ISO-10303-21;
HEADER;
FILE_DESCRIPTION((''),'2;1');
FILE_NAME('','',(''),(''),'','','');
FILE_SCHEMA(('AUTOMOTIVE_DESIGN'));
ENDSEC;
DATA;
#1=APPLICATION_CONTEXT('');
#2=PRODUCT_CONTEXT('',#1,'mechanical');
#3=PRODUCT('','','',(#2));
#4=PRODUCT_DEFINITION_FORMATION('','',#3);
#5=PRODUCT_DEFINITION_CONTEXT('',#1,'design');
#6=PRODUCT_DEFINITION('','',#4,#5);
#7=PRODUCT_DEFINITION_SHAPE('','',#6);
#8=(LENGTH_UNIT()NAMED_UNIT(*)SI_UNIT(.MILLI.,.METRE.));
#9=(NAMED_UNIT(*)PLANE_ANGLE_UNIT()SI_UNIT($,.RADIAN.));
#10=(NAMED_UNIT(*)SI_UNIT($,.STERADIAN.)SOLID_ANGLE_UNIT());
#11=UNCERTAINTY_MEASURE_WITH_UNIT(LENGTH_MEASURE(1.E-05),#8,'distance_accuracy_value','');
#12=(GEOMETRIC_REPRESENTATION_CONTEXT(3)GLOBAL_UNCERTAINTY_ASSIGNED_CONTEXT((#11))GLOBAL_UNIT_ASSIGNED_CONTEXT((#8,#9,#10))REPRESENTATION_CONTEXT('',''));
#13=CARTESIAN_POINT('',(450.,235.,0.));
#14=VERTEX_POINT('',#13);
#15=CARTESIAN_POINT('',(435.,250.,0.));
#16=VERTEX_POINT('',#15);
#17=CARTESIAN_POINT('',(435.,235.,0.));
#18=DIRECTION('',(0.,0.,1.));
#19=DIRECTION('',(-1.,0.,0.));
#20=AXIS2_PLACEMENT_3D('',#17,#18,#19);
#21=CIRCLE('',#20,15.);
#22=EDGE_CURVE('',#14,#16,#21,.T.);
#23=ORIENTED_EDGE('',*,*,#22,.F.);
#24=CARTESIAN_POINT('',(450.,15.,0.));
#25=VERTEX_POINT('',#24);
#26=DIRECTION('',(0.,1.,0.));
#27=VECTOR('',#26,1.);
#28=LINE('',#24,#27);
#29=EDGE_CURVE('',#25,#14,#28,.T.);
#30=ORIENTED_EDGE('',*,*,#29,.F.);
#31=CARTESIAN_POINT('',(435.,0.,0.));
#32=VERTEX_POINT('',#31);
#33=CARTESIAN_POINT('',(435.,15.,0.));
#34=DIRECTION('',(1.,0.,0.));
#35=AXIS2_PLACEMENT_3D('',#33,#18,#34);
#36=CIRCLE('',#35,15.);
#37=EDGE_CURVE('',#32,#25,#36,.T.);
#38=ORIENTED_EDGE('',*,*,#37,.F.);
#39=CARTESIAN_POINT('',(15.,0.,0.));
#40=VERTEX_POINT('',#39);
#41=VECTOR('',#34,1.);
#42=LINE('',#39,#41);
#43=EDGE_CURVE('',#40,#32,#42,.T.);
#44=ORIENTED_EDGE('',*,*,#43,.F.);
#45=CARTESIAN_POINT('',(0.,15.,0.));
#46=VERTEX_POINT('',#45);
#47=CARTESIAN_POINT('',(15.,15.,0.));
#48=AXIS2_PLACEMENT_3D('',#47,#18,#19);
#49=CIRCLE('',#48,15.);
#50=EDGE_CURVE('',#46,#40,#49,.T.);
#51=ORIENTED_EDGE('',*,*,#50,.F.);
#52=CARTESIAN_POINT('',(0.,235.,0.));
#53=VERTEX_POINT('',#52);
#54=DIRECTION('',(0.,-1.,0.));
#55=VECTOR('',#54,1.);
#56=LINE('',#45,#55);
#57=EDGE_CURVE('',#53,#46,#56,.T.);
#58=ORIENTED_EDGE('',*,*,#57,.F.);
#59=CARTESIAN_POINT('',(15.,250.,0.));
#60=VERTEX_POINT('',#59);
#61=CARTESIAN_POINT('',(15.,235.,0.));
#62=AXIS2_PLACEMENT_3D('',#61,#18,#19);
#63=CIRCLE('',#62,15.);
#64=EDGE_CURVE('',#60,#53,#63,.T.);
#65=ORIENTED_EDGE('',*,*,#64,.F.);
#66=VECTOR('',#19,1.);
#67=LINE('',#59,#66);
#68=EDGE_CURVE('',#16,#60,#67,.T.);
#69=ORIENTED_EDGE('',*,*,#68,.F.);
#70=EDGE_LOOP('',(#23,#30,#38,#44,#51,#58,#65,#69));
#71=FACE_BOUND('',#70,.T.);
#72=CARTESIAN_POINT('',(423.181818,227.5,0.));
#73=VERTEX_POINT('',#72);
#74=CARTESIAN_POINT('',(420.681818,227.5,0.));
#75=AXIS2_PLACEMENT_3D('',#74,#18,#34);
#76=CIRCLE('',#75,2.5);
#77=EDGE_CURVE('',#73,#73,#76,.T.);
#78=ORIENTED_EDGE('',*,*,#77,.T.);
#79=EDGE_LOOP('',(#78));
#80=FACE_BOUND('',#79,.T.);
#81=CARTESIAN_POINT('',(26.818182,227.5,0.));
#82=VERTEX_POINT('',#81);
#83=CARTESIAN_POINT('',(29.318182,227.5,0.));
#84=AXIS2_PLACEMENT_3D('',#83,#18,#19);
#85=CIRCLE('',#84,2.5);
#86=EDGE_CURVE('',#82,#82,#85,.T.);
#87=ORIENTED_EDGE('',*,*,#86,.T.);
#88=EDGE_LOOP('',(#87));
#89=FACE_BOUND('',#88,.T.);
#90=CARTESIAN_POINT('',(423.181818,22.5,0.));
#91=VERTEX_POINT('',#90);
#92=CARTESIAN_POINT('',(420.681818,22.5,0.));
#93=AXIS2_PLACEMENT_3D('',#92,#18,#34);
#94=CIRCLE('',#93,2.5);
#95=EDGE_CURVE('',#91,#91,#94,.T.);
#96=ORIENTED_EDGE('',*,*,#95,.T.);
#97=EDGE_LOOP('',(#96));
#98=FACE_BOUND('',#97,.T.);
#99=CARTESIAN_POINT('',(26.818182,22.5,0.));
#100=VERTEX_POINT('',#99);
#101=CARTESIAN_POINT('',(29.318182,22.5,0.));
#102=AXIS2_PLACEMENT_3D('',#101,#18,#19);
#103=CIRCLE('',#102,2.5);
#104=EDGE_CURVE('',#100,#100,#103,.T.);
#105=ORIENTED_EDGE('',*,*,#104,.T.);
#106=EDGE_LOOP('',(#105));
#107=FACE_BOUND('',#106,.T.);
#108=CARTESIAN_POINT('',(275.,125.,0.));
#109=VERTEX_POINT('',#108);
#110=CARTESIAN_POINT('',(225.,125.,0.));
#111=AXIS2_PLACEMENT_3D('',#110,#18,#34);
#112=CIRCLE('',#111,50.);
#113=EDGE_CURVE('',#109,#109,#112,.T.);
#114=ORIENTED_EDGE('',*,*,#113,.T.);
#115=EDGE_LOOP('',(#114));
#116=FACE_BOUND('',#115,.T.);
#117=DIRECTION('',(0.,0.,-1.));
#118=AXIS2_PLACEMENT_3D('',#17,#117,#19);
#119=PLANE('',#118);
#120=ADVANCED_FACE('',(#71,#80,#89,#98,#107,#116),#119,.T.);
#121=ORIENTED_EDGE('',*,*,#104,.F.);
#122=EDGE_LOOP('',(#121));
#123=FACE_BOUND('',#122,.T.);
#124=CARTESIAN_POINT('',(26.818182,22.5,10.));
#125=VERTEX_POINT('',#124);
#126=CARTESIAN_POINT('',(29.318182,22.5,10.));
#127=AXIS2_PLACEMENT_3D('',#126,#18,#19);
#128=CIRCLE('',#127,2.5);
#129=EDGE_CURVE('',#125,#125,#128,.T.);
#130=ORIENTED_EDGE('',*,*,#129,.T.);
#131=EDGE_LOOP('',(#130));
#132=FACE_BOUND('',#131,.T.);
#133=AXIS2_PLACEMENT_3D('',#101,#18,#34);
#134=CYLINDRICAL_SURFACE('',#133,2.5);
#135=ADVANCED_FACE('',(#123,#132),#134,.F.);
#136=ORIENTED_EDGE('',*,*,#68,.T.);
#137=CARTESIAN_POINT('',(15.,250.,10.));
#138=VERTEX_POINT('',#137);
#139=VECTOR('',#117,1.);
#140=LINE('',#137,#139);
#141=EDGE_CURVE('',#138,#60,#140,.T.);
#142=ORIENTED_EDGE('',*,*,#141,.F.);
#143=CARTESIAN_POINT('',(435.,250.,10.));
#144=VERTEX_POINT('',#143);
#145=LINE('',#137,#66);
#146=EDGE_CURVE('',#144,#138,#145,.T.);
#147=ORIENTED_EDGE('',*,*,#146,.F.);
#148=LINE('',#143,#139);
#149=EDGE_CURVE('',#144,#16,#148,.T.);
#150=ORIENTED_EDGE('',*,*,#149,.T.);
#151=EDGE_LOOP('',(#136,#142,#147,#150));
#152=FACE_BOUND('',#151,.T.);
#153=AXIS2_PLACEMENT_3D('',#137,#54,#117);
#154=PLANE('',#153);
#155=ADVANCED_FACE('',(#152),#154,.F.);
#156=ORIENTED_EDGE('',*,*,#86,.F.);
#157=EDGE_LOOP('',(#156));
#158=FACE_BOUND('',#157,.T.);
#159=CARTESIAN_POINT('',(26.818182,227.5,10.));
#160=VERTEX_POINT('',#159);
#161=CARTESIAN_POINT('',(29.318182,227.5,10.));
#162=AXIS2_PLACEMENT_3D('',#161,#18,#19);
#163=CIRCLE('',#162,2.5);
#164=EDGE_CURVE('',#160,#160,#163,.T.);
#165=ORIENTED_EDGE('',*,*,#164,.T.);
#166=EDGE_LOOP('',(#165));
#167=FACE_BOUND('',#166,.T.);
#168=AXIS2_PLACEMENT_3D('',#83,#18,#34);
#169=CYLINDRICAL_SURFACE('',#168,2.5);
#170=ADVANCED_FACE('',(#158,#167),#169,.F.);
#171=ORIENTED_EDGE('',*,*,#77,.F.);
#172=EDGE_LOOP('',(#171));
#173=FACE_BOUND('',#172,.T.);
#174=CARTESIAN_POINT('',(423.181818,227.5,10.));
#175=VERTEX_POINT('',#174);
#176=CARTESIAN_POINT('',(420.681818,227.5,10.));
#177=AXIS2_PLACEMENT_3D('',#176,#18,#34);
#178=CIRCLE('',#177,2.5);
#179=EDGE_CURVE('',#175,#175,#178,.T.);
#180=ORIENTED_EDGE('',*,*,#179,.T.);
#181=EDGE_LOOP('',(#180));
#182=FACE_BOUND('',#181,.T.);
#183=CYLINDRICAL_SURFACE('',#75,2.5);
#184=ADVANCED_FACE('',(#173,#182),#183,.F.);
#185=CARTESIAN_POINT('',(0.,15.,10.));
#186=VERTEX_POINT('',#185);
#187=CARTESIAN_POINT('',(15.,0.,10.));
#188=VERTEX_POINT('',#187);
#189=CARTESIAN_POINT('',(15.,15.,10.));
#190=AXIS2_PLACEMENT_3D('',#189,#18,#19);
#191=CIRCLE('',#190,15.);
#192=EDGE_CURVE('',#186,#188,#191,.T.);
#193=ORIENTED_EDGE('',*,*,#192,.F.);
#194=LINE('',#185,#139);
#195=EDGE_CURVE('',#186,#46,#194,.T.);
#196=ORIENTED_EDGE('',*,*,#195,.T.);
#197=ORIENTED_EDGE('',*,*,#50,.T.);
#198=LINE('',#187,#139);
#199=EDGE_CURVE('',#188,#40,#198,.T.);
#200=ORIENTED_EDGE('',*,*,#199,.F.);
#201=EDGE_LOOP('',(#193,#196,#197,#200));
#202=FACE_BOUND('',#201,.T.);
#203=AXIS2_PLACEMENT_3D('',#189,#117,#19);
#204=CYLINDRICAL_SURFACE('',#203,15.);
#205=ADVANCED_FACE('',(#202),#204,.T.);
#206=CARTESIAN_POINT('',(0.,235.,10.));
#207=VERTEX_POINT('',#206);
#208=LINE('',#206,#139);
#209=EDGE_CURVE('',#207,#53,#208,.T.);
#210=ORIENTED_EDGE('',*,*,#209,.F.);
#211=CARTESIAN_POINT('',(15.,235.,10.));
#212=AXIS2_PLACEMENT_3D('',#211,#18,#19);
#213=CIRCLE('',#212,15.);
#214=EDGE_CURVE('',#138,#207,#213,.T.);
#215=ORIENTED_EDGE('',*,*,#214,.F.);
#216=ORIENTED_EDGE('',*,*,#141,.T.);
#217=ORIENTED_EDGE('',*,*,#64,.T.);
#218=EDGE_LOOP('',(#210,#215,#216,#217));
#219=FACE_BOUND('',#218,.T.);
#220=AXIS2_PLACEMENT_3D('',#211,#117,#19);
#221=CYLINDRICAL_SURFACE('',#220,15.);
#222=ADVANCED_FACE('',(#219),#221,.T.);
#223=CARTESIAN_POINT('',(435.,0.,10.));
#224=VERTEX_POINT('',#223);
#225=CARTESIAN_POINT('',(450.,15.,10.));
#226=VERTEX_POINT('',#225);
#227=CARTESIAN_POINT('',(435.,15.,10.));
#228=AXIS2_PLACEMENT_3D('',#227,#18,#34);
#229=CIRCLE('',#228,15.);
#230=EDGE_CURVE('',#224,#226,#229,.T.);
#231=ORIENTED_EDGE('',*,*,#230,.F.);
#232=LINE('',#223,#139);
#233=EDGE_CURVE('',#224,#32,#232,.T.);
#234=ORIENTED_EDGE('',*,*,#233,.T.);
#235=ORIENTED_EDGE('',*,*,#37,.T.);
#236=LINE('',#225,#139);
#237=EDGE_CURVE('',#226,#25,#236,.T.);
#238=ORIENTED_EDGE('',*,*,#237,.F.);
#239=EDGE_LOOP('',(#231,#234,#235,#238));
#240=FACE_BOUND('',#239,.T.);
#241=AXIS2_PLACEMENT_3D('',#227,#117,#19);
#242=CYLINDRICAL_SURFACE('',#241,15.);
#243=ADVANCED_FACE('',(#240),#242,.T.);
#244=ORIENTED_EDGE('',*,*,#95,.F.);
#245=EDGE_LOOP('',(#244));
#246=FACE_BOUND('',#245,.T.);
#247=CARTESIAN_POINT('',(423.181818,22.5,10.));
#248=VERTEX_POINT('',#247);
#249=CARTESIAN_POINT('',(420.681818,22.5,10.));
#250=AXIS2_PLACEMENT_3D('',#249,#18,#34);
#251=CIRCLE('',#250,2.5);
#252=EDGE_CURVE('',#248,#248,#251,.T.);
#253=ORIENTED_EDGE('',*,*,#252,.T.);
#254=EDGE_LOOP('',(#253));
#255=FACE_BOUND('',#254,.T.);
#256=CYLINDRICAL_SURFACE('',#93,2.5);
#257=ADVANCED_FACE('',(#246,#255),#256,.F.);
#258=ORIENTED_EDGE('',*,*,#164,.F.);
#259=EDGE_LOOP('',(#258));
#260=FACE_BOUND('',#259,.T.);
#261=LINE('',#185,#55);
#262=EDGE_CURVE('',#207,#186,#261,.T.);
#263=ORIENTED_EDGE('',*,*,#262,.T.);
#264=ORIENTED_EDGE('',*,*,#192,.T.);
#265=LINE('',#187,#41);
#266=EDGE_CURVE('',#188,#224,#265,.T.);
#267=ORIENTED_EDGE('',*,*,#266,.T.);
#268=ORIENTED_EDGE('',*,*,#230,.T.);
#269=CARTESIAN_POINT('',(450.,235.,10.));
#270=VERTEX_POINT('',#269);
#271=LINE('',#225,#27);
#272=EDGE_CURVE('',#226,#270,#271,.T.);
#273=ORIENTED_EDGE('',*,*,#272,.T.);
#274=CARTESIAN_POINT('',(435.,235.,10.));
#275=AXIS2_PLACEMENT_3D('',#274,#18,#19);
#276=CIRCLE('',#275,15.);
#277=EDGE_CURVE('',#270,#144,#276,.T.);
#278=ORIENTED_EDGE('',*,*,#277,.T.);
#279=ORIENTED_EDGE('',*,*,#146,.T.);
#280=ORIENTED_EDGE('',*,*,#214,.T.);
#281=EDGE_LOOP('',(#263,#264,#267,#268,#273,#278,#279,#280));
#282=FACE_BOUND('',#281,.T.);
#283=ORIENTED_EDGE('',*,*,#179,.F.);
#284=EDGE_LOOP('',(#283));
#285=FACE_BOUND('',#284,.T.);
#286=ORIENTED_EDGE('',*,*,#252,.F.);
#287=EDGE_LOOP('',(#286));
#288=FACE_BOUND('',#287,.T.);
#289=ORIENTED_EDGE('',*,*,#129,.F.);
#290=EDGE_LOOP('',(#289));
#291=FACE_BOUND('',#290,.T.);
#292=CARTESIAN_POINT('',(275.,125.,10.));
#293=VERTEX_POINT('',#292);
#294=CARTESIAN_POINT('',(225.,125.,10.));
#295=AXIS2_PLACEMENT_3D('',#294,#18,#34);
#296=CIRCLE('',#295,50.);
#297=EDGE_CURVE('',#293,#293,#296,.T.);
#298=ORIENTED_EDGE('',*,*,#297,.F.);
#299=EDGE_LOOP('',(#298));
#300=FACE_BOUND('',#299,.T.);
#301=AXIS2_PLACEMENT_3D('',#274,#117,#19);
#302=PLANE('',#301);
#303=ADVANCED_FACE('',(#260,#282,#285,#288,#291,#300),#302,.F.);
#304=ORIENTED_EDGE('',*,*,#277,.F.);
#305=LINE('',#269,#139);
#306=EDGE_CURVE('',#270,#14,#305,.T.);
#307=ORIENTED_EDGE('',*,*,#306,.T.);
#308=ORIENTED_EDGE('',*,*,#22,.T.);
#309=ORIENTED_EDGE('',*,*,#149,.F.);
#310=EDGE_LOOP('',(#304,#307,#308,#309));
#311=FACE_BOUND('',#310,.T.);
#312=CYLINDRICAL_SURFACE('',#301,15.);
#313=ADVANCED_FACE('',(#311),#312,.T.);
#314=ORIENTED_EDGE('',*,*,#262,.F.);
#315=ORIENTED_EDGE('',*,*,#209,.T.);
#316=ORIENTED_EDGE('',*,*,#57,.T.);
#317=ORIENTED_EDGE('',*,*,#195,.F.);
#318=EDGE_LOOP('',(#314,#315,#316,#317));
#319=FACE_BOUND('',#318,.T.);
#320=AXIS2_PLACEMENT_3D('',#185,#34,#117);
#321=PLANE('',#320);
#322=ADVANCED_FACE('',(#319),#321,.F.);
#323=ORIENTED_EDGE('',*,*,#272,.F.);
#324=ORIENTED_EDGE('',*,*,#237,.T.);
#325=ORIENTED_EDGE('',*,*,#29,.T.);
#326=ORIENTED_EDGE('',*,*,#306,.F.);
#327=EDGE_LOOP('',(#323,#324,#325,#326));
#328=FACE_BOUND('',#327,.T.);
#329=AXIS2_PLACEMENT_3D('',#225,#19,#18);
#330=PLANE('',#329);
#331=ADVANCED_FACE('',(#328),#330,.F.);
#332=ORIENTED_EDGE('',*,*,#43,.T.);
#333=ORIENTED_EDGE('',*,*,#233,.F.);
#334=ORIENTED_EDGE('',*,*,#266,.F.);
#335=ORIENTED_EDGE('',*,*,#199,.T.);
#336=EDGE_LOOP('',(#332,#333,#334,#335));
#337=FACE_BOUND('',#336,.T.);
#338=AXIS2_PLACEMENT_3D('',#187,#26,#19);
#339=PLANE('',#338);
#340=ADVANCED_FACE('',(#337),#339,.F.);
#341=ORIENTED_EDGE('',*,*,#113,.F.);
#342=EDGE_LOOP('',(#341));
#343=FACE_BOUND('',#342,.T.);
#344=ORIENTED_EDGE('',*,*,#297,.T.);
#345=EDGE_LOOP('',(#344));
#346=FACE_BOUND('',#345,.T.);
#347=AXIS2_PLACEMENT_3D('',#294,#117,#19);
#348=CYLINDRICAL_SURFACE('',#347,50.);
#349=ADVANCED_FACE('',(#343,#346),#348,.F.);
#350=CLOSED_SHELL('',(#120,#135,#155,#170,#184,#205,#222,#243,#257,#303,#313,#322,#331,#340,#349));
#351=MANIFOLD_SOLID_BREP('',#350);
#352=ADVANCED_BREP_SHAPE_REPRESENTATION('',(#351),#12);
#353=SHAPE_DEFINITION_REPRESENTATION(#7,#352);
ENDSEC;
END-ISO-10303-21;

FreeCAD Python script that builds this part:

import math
import FreeCAD as App
import Part
import Sketcher
Q = App.Units.Quantity

doc = App.newDocument("Part")
body = doc.addObject("PartDesign::Body", "Body")

sketch1 = body.newObject("Sketcher::SketchObject", "Sketch")
sketch1.AttachmentSupport = (doc.getObject("XY_Plane"), [""])
sketch1.MapMode = "FlatFace"
sketch1.addGeometry(Part.LineSegment(App.Vector(15, 0, 0), App.Vector(435, 0, 0)), False)
sketch1.addGeometry(Part.ArcOfCircle(Part.Circle(App.Vector(435, 15, 0), App.Vector(0, 0, 1), 15), math.radians(-90), math.radians(0)), False)
sketch1.addGeometry(Part.LineSegment(App.Vector(450, 15, 0), App.Vector(450, 235, 0)), False)
sketch1.addGeometry(Part.ArcOfCircle(Part.Circle(App.Vector(435, 235, 0), App.Vector(0, 0, 1), 15), math.radians(0), math.radians(90)), False)
sketch1.addGeometry(Part.LineSegment(App.Vector(435, 250, 0), App.Vector(15, 250, 0)), False)
sketch1.addGeometry(Part.ArcOfCircle(Part.Circle(App.Vector(15, 235, 0), App.Vector(0, 0, 1), 15), math.radians(90), math.radians(180)), False)
sketch1.addGeometry(Part.LineSegment(App.Vector(0, 235, 0), App.Vector(0, 15, 0)), False)
sketch1.addGeometry(Part.ArcOfCircle(Part.Circle(App.Vector(15, 15, 0), App.Vector(0, 0, 1), 15), math.radians(180), math.radians(270)), False)
sketch1.addGeometry(Part.Circle(App.Vector(225, 125, 0), App.Vector(0, 0, 1), 50), False)
sketch1.addConstraint(Sketcher.Constraint("Tangent", 0, 2, 1, 1))
sketch1.addConstraint(Sketcher.Constraint("Tangent", 1, 2, 2, 1))
sketch1.addConstraint(Sketcher.Constraint("Tangent", 2, 2, 3, 1))
sketch1.addConstraint(Sketcher.Constraint("Tangent", 3, 2, 4, 1))
sketch1.addConstraint(Sketcher.Constraint("Tangent", 4, 2, 5, 1))
sketch1.addConstraint(Sketcher.Constraint("Tangent", 5, 2, 6, 1))
sketch1.addConstraint(Sketcher.Constraint("Tangent", 6, 2, 7, 1))
sketch1.addConstraint(Sketcher.Constraint("Tangent", 7, 2, 0, 1))
sketch1.addConstraint(Sketcher.Constraint("Horizontal", 0))
sketch1.addConstraint(Sketcher.Constraint("Vertical", 2))
sketch1.addConstraint(Sketcher.Constraint("Horizontal", 4))
sketch1.addConstraint(Sketcher.Constraint("Vertical", 6))
sketch1.addConstraint(Sketcher.Constraint("Equal", 1, 3))
sketch1.addConstraint(Sketcher.Constraint("Equal", 3, 5))
sketch1.addConstraint(Sketcher.Constraint("Equal", 5, 7))
sketch1.addConstraint(Sketcher.Constraint("PointOnObject", 0, 2, -1))
sketch1.addConstraint(Sketcher.Constraint("PointOnObject", 5, 2, -2))
sketch1.addConstraint(Sketcher.Constraint("Diameter", 8, Q("100 mm")))
sketch1.addConstraint(Sketcher.Constraint("Radius", 1, Q("15 mm")))
sketch1.addConstraint(Sketcher.Constraint("DistanceX", 0, 1, 0, 2, Q("420 mm")))
sketch1.addConstraint(Sketcher.Constraint("DistanceY", 2, 1, 2, 2, Q("220 mm")))
sketch1.addConstraint(Sketcher.Constraint("DistanceX", -1, 1, 8, 3, Q("225 mm")))
sketch1.addConstraint(Sketcher.Constraint("DistanceY", -1, 1, 8, 3, Q("125 mm")))
pad1 = body.newObject("PartDesign::Pad", "Pad")
pad1.Profile = sketch1
pad1.Length = 10

sketch2 = body.newObject("Sketcher::SketchObject", "Sketch001")
sketch2.AttachmentSupport = (doc.getObject("XY_Plane"), [""])
sketch2.MapMode = "FlatFace"
sketch2.AttachmentOffset = App.Placement(App.Vector(0, 0, 10), App.Rotation())
sketch2.addGeometry(Part.Circle(App.Vector(420.7, 22.5, 0), App.Vector(0, 0, 1), 2.5), False)
sketch2.addGeometry(Part.Circle(App.Vector(420.7, 227.5, 0), App.Vector(0, 0, 1), 2.5), False)
sketch2.addGeometry(Part.Circle(App.Vector(29.3, 227.5, 0), App.Vector(0, 0, 1), 2.5), False)
sketch2.addGeometry(Part.Circle(App.Vector(29.3, 22.5, 0), App.Vector(0, 0, 1), 2.5), False)
sketch2.addConstraint(Sketcher.Constraint("Equal", 0, 1))
sketch2.addConstraint(Sketcher.Constraint("Equal", 1, 2))
sketch2.addConstraint(Sketcher.Constraint("Equal", 2, 3))
sketch2.addConstraint(Sketcher.Constraint("Horizontal", 1, 3, 2, 3))
sketch2.addConstraint(Sketcher.Constraint("Horizontal", 0, 3, 3, 3))
sketch2.addConstraint(Sketcher.Constraint("Vertical", 0, 3, 1, 3))
sketch2.addConstraint(Sketcher.Constraint("Vertical", 2, 3, 3, 3))
sketch2.addConstraint(Sketcher.Constraint("Diameter", 0, Q("5 mm")))
sketch2.addConstraint(Sketcher.Constraint("DistanceY", 0, 3, 1, 3, Q("205 mm")))
sketch2.addConstraint(Sketcher.Constraint("DistanceY", -1, 1, 0, 3, Q("22.5 mm")))
sketch2.addConstraint(Sketcher.Constraint("DistanceX", -1, 1, 0, 3, Q("420.681818 mm")))
sketch2.addConstraint(Sketcher.Constraint("DistanceX", -1, 1, 2, 3, Q("29.318182 mm")))
pocket1 = body.newObject("PartDesign::Pocket", "Pocket")
pocket1.Profile = sketch2
pocket1.Length = 10

doc.recompute()
